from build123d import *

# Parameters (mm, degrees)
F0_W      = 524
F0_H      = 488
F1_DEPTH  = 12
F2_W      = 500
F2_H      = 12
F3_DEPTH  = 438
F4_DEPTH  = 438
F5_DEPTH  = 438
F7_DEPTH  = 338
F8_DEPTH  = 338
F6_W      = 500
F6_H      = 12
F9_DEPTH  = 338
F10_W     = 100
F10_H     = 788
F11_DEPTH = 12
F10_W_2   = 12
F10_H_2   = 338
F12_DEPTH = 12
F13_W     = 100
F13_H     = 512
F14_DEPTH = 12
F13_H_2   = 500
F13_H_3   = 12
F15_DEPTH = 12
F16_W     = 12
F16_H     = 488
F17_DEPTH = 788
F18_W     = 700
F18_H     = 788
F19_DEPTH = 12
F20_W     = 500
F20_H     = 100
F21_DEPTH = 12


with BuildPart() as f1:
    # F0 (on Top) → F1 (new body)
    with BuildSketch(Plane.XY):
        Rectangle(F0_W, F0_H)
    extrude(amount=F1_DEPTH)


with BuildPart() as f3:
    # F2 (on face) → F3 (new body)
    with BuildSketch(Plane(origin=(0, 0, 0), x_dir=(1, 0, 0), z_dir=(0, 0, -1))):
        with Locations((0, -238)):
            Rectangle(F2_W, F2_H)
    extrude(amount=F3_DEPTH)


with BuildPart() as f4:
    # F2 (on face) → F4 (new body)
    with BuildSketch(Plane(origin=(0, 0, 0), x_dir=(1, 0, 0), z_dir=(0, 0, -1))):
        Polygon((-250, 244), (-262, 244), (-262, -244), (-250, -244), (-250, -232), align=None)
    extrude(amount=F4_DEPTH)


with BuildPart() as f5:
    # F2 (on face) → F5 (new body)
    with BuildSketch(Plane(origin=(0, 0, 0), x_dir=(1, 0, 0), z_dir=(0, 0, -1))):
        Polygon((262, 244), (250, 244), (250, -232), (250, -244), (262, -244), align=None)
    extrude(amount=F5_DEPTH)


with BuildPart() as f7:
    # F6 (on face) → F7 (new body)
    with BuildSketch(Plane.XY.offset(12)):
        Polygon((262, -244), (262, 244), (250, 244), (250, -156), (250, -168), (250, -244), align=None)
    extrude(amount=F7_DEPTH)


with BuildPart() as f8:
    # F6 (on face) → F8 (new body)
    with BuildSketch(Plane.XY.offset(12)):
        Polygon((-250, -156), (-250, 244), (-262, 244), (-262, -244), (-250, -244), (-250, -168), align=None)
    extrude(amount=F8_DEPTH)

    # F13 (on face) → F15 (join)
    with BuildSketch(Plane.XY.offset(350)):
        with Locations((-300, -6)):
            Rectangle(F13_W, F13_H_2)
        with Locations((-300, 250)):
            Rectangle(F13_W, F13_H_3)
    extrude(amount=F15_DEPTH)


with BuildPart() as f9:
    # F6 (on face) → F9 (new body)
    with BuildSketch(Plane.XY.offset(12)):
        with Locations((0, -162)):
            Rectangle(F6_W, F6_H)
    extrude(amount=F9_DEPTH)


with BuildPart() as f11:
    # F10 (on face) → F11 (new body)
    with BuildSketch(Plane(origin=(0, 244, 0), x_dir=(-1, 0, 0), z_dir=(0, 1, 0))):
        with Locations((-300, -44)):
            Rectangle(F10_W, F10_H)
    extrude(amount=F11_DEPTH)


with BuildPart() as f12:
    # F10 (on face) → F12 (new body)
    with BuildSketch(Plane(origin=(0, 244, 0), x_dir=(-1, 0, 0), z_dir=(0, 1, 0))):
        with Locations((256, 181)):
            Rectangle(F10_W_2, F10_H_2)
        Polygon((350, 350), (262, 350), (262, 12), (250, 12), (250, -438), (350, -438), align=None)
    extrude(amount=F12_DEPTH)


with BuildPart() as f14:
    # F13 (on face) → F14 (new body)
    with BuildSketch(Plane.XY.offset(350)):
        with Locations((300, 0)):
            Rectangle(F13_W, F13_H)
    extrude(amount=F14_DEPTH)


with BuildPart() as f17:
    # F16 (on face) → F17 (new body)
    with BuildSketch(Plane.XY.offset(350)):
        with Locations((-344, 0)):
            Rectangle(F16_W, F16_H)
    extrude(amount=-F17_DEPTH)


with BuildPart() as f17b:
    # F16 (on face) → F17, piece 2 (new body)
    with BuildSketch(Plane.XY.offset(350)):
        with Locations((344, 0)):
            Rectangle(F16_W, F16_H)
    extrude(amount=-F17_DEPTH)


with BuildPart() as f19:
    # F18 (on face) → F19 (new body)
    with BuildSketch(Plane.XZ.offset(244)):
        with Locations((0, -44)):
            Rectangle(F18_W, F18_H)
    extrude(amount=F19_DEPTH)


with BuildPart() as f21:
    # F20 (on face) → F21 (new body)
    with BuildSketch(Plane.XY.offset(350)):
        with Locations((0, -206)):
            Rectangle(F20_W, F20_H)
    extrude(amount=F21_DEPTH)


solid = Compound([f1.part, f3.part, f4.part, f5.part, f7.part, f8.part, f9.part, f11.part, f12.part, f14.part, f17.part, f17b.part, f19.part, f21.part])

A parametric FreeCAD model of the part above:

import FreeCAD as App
import Part
import Sketcher

V = App.Vector


def add_polygon(sketch, points):
    """Adds a closed chain of lines whose ends are joined by coincident constraints."""
    first, n = sketch.GeometryCount, len(points)
    for a, b in zip(points, points[1:] + points[:1]):
        sketch.addGeometry(Part.LineSegment(App.Vector(*a, 0), App.Vector(*b, 0)), False)
    for i in range(n):
        sketch.addConstraint(Sketcher.Constraint("Coincident", first + i, 2, first + (i + 1) % n, 1))

doc = App.newDocument("Part")
body = doc.addObject("PartDesign::Body", "Body")

# Sketch on XY plane
sketch1 = body.newObject("Sketcher::SketchObject", "Sketch")
sketch1.AttachmentSupport = (doc.getObject("XY_Plane"), [""])
sketch1.MapMode = "FlatFace"
add_polygon(sketch1, [(-262, 244), (-262, -244), (262, -244), (262, 244)])  # lines 0-3
sketch1.addConstraint([
    Sketcher.Constraint("Vertical", 0),
    Sketcher.Constraint("Horizontal", 1),
    Sketcher.Constraint("Vertical", 2),
    Sketcher.Constraint("Horizontal", 3),
    Sketcher.Constraint("Symmetric", 0, 2, 2, 2, -1, 1),
    Sketcher.Constraint("DistanceX", 1, 1, 1, 2, 524.0),
    Sketcher.Constraint("DistanceY", 0, 2, 0, 1, 488.0),
])
pad1 = body.newObject("PartDesign::Pad", "Pad")
pad1.Profile = sketch1
pad1.Length = 12
body2 = doc.addObject("PartDesign::Body", "Body001")

# Sketch on XY plane
sketch2 = body2.newObject("Sketcher::SketchObject", "Sketch001")
sketch2.AttachmentSupport = (doc.getObject("XY_Plane001"), [""])
sketch2.MapMode = "FlatFace"
add_polygon(sketch2, [(-250, 232), (-250, 244), (250, 244), (250, 232)])  # lines 0-3
sketch2.addConstraint([
    Sketcher.Constraint("Vertical", 0),
    Sketcher.Constraint("Horizontal", 1),
    Sketcher.Constraint("Vertical", 2),
    Sketcher.Constraint("Horizontal", 3),
    Sketcher.Constraint("DistanceX", 1, 1, 1, 2, 500.0),
    Sketcher.Constraint("DistanceY", 0, 1, 0, 2, 12.0),
    Sketcher.Constraint("DistanceX", 0, 2, -1, 1, 250.0),
    Sketcher.Constraint("DistanceY", -1, 1, 0, 2, 244.0),
])
pad2 = body2.newObject("PartDesign::Pad", "Pad001")
pad2.Profile = sketch2
pad2.Length = 438
pad2.Reversed = True
body3 = doc.addObject("PartDesign::Body", "Body002")

# Sketch on XY plane
sketch3 = body3.newObject("Sketcher::SketchObject", "Sketch002")
sketch3.AttachmentSupport = (doc.getObject("XY_Plane002"), [""])
sketch3.MapMode = "FlatFace"
add_polygon(sketch3, [(-250, -244), (-262, -244), (-262, 244), (-250, 244)])  # lines 0-3
sketch3.addConstraint([
    Sketcher.Constraint("Horizontal", 0),
    Sketcher.Constraint("Vertical", 1),
    Sketcher.Constraint("Horizontal", 2),
    Sketcher.Constraint("Vertical", 3),
    Sketcher.Constraint("DistanceX", 0, 2, 0, 1, 12.0),
    Sketcher.Constraint("DistanceY", 1, 1, 1, 2, 488.0),
    Sketcher.Constraint("DistanceX", 0, 2, -1, 1, 262.0),
    Sketcher.Constraint("DistanceY", 0, 2, -1, 1, 244.0),
])
pad3 = body3.newObject("PartDesign::Pad", "Pad002")
pad3.Profile = sketch3
pad3.Length = 438
pad3.Reversed = True
body4 = doc.addObject("PartDesign::Body", "Body003")

# Sketch on XY plane
sketch4 = body4.newObject("Sketcher::SketchObject", "Sketch003")
sketch4.AttachmentSupport = (doc.getObject("XY_Plane003"), [""])
sketch4.MapMode = "FlatFace"
add_polygon(sketch4, [(262, -244), (250, -244), (250, 244), (262, 244)])  # lines 0-3
sketch4.addConstraint([
    Sketcher.Constraint("Horizontal", 0),
    Sketcher.Constraint("Vertical", 1),
    Sketcher.Constraint("Horizontal", 2),
    Sketcher.Constraint("Vertical", 3),
    Sketcher.Constraint("DistanceX", 0, 2, 0, 1, 12.0),
    Sketcher.Constraint("DistanceY", 1, 1, 1, 2, 488.0),
    Sketcher.Constraint("DistanceX", -1, 1, 0, 2, 250.0),
    Sketcher.Constraint("DistanceY", 0, 2, -1, 1, 244.0),
])
pad4 = body4.newObject("PartDesign::Pad", "Pad003")
pad4.Profile = sketch4
pad4.Length = 438
pad4.Reversed = True
body5 = doc.addObject("PartDesign::Body", "Body004")

# Sketch on XY plane
sketch5 = body5.newObject("Sketcher::SketchObject", "Sketch004")
sketch5.AttachmentSupport = (doc.getObject("XY_Plane004"), [""])
sketch5.MapMode = "FlatFace"
sketch5.AttachmentOffset = App.Placement(V(0, 0, 12), App.Rotation())
add_polygon(sketch5, [(262, -244), (262, 244), (250, 244), (250, -244)])  # lines 0-3
sketch5.addConstraint([
    Sketcher.Constraint("Vertical", 0),
    Sketcher.Constraint("Horizontal", 1),
    Sketcher.Constraint("Vertical", 2),
    Sketcher.Constraint("Horizontal", 3),
    Sketcher.Constraint("DistanceX", 1, 2, 1, 1, 12.0),
    Sketcher.Constraint("DistanceY", 0, 1, 0, 2, 488.0),
    Sketcher.Constraint("DistanceX", -1, 1, 0, 2, 262.0),
    Sketcher.Constraint("DistanceY", -1, 1, 0, 2, 244.0),
])
pad5 = body5.newObject("PartDesign::Pad", "Pad004")
pad5.Profile = sketch5
pad5.Length = 338
body6 = doc.addObject("PartDesign::Body", "Body005")

# Sketch on XY plane
sketch6 = body6.newObject("Sketcher::SketchObject", "Sketch005")
sketch6.AttachmentSupport = (doc.getObject("XY_Plane005"), [""])
sketch6.MapMode = "FlatFace"
sketch6.AttachmentOffset = App.Placement(V(0, 0, 12), App.Rotation())
add_polygon(sketch6, [(-250, 244), (-262, 244), (-262, -244), (-250, -244)])  # lines 0-3
sketch6.addConstraint([
    Sketcher.Constraint("Horizontal", 0),
    Sketcher.Constraint("Vertical", 1),
    Sketcher.Constraint("Horizontal", 2),
    Sketcher.Constraint("Vertical", 3),
    Sketcher.Constraint("DistanceX", 0, 2, 0, 1, 12.0),
    Sketcher.Constraint("DistanceY", 1, 2, 1, 1, 488.0),
    Sketcher.Constraint("DistanceX", 0, 2, -1, 1, 262.0),
    Sketcher.Constraint("DistanceY", -1, 1, 0, 2, 244.0),
])
pad6 = body6.newObject("PartDesign::Pad", "Pad005")
pad6.Profile = sketch6
pad6.Length = 338

# Sketch on XY plane
sketch7 = body6.newObject("Sketcher::SketchObject", "Sketch006")
sketch7.AttachmentSupport = (doc.getObject("XY_Plane005"), [""])
sketch7.MapMode = "FlatFace"
sketch7.AttachmentOffset = App.Placement(V(0, 0, 350), App.Rotation())
add_polygon(sketch7, [(-350, -256), (-250, -256), (-250, 256), (-350, 256)])  # lines 0-3
sketch7.addConstraint([
    Sketcher.Constraint("Horizontal", 0),
    Sketcher.Constraint("Vertical", 1),
    Sketcher.Constraint("Horizontal", 2),
    Sketcher.Constraint("Vertical", 3),
    Sketcher.Constraint("DistanceX", 0, 1, 0, 2, 100.0),
    Sketcher.Constraint("DistanceY", 1, 1, 1, 2, 512.0),
    Sketcher.Constraint("DistanceX", 0, 2, -1, 1, 250.0),
    Sketcher.Constraint("DistanceY", 0, 2, -1, 1, 256.0),
])
pad7 = body6.newObject("PartDesign::Pad", "Pad006")
pad7.Profile = sketch7
pad7.Length = 12
body7 = doc.addObject("PartDesign::Body", "Body006")

# Sketch on XY plane
sketch8 = body7.newObject("Sketcher::SketchObject", "Sketch007")
sketch8.AttachmentSupport = (doc.getObject("XY_Plane006"), [""])
sketch8.MapMode = "FlatFace"
sketch8.AttachmentOffset = App.Placement(V(0, 0, 12), App.Rotation())
add_polygon(sketch8, [(-250, -156), (-250, -168), (250, -168), (250, -156)])  # lines 0-3
sketch8.addConstraint([
    Sketcher.Constraint("Vertical", 0),
    Sketcher.Constraint("Horizontal", 1),
    Sketcher.Constraint("Vertical", 2),
    Sketcher.Constraint("Horizontal", 3),
    Sketcher.Constraint("DistanceX", 1, 1, 1, 2, 500.0),
    Sketcher.Constraint("DistanceY", 0, 2, 0, 1, 12.0),
    Sketcher.Constraint("DistanceX", 0, 2, -1, 1, 250.0),
    Sketcher.Constraint("DistanceY", 0, 2, -1, 1, 168.0),
])
pad8 = body7.newObject("PartDesign::Pad", "Pad007")
pad8.Profile = sketch8
pad8.Length = 338
body8 = doc.addObject("PartDesign::Body", "Body007")

# Sketch on XZ plane
sketch9 = body8.newObject("Sketcher::SketchObject", "Sketch008")
sketch9.AttachmentSupport = (doc.getObject("XZ_Plane007"), [""])
sketch9.MapMode = "FlatFace"
sketch9.AttachmentOffset = App.Placement(V(0, 0, -244), App.Rotation())
add_polygon(sketch9, [(350, 350), (350, -438), (250, -438), (250, 350)])  # lines 0-3
sketch9.addConstraint([
    Sketcher.Constraint("Vertical", 0),
    Sketcher.Constraint("Horizontal", 1),
    Sketcher.Constraint("Vertical", 2),
    Sketcher.Constraint("Horizontal", 3),
    Sketcher.Constraint("DistanceX", 1, 2, 1, 1, 100.0),
    Sketcher.Constraint("DistanceY", 0, 2, 0, 1, 788.0),
    Sketcher.Constraint("DistanceX", -1, 1, 0, 2, 350.0),
    Sketcher.Constraint("DistanceY", 0, 2, -1, 1, 438.0),
])
pad9 = body8.newObject("PartDesign::Pad", "Pad008")
pad9.Profile = sketch9
pad9.Length = 12
pad9.Reversed = True
body9 = doc.addObject("PartDesign::Body", "Body008")

# Sketch on XZ plane
sketch10 = body9.newObject("Sketcher::SketchObject", "Sketch009")
sketch10.AttachmentSupport = (doc.getObject("XZ_Plane008"), [""])
sketch10.MapMode = "FlatFace"
sketch10.AttachmentOffset = App.Placement(V(0, 0, -244), App.Rotation())
add_polygon(sketch10, [(-250, 350), (-250, -438), (-350, -438), (-350, 350)])  # lines 0-3
sketch10.addConstraint([
    Sketcher.Constraint("Vertical", 0),
    Sketcher.Constraint("Horizontal", 1),
    Sketcher.Constraint("Vertical", 2),
    Sketcher.Constraint("Horizontal", 3),
    Sketcher.Constraint("DistanceX", 1, 2, 1, 1, 100.0),
    Sketcher.Constraint("DistanceY", 0, 2, 0, 1, 788.0),
    Sketcher.Constraint("DistanceX", 0, 2, -1, 1, 250.0),
    Sketcher.Constraint("DistanceY", 0, 2, -1, 1, 438.0),
])
pad10 = body9.newObject("PartDesign::Pad", "Pad009")
pad10.Profile = sketch10
pad10.Length = 12
pad10.Reversed = True
body10 = doc.addObject("PartDesign::Body", "Body009")

# Sketch on XY plane
sketch11 = body10.newObject("Sketcher::SketchObject", "Sketch010")
sketch11.AttachmentSupport = (doc.getObject("XY_Plane009"), [""])
sketch11.MapMode = "FlatFace"
sketch11.AttachmentOffset = App.Placement(V(0, 0, 350), App.Rotation())
add_polygon(sketch11, [(250, 256), (250, -256), (350, -256), (350, 256)])  # lines 0-3
sketch11.addConstraint([
    Sketcher.Constraint("Vertical", 0),
    Sketcher.Constraint("Horizontal", 1),
    Sketcher.Constraint("Vertical", 2),
    Sketcher.Constraint("Horizontal", 3),
    Sketcher.Constraint("DistanceX", 1, 1, 1, 2, 100.0),
    Sketcher.Constraint("DistanceY", 0, 2, 0, 1, 512.0),
    Sketcher.Constraint("DistanceX", -1, 1, 0, 2, 250.0),
    Sketcher.Constraint("DistanceY", 0, 2, -1, 1, 256.0),
])
pad11 = body10.newObject("PartDesign::Pad", "Pad010")
pad11.Profile = sketch11
pad11.Length = 12
body11 = doc.addObject("PartDesign::Body", "Body010")

# Sketch on XY plane
sketch12 = body11.newObject("Sketcher::SketchObject", "Sketch011")
sketch12.AttachmentSupport = (doc.getObject("XY_Plane010"), [""])
sketch12.MapMode = "FlatFace"
sketch12.AttachmentOffset = App.Placement(V(0, 0, 350), App.Rotation())
add_polygon(sketch12, [(-350, 244), (-350, -244), (-338, -244), (-338, 244)])  # lines 0-3
sketch12.addConstraint([
    Sketcher.Constraint("Vertical", 0),
    Sketcher.Constraint("Horizontal", 1),
    Sketcher.Constraint("Vertical", 2),
    Sketcher.Constraint("Horizontal", 3),
    Sketcher.Constraint("DistanceX", 1, 1, 1, 2, 12.0),
    Sketcher.Constraint("DistanceY", 0, 2, 0, 1, 488.0),
    Sketcher.Constraint("DistanceX", 0, 2, -1, 1, 350.0),
    Sketcher.Constraint("DistanceY", 0, 2, -1, 1, 244.0),
])
pad12 = body11.newObject("PartDesign::Pad", "Pad011")
pad12.Profile = sketch12
pad12.Length = 788
pad12.Reversed = True
body12 = doc.addObject("PartDesign::Body", "Body011")

# Sketch on XY plane
sketch13 = body12.newObject("Sketcher::SketchObject", "Sketch012")
sketch13.AttachmentSupport = (doc.getObject("XY_Plane011"), [""])
sketch13.MapMode = "FlatFace"
sketch13.AttachmentOffset = App.Placement(V(0, 0, 350), App.Rotation())
add_polygon(sketch13, [(338, 244), (338, -244), (350, -244), (350, 244)])  # lines 0-3
sketch13.addConstraint([
    Sketcher.Constraint("Vertical", 0),
    Sketcher.Constraint("Horizontal", 1),
    Sketcher.Constraint("Vertical", 2),
    Sketcher.Constraint("Horizontal", 3),
    Sketcher.Constraint("DistanceX", 1, 1, 1, 2, 12.0),
    Sketcher.Constraint("DistanceY", 0, 2, 0, 1, 488.0),
    Sketcher.Constraint("DistanceX", -1, 1, 0, 2, 338.0),
    Sketcher.Constraint("DistanceY", 0, 2, -1, 1, 244.0),
])
pad13 = body12.newObject("PartDesign::Pad", "Pad012")
pad13.Profile = sketch13
pad13.Length = 788
pad13.Reversed = True
body13 = doc.addObject("PartDesign::Body", "Body012")

# Sketch on XZ plane
sketch14 = body13.newObject("Sketcher::SketchObject", "Sketch013")
sketch14.AttachmentSupport = (doc.getObject("XZ_Plane012"), [""])
sketch14.MapMode = "FlatFace"
sketch14.AttachmentOffset = App.Placement(V(0, 0, 244), App.Rotation())
add_polygon(sketch14, [(-350, 350), (-350, -438), (350, -438), (350, 350)])  # lines 0-3
sketch14.addConstraint([
    Sketcher.Constraint("Vertical", 0),
    Sketcher.Constraint("Horizontal", 1),
    Sketcher.Constraint("Vertical", 2),
    Sketcher.Constraint("Horizontal", 3),
    Sketcher.Constraint("DistanceX", 1, 1, 1, 2, 700.0),
    Sketcher.Constraint("DistanceY", 0, 2, 0, 1, 788.0),
    Sketcher.Constraint("DistanceX", 0, 2, -1, 1, 350.0),
    Sketcher.Constraint("DistanceY", 0, 2, -1, 1, 438.0),
])
pad14 = body13.newObject("PartDesign::Pad", "Pad013")
pad14.Profile = sketch14
pad14.Length = 12
body14 = doc.addObject("PartDesign::Body", "Body013")

# Sketch on XY plane
sketch15 = body14.newObject("Sketcher::SketchObject", "Sketch014")
sketch15.AttachmentSupport = (doc.getObject("XY_Plane013"), [""])
sketch15.MapMode = "FlatFace"
sketch15.AttachmentOffset = App.Placement(V(0, 0, 350), App.Rotation())
add_polygon(sketch15, [(-250, -156), (-250, -256), (250, -256), (250, -156)])  # lines 0-3
sketch15.addConstraint([
    Sketcher.Constraint("Vertical", 0),
    Sketcher.Constraint("Horizontal", 1),
    Sketcher.Constraint("Vertical", 2),
    Sketcher.Constraint("Horizontal", 3),
    Sketcher.Constraint("DistanceX", 1, 1, 1, 2, 500.0),
    Sketcher.Constraint("DistanceY", 0, 2, 0, 1, 100.0),
    Sketcher.Constraint("DistanceX", 0, 2, -1, 1, 250.0),
    Sketcher.Constraint("DistanceY", 0, 2, -1, 1, 256.0),
])
pad15 = body14.newObject("PartDesign::Pad", "Pad014")
pad15.Profile = sketch15
pad15.Length = 12

doc.recompute()
